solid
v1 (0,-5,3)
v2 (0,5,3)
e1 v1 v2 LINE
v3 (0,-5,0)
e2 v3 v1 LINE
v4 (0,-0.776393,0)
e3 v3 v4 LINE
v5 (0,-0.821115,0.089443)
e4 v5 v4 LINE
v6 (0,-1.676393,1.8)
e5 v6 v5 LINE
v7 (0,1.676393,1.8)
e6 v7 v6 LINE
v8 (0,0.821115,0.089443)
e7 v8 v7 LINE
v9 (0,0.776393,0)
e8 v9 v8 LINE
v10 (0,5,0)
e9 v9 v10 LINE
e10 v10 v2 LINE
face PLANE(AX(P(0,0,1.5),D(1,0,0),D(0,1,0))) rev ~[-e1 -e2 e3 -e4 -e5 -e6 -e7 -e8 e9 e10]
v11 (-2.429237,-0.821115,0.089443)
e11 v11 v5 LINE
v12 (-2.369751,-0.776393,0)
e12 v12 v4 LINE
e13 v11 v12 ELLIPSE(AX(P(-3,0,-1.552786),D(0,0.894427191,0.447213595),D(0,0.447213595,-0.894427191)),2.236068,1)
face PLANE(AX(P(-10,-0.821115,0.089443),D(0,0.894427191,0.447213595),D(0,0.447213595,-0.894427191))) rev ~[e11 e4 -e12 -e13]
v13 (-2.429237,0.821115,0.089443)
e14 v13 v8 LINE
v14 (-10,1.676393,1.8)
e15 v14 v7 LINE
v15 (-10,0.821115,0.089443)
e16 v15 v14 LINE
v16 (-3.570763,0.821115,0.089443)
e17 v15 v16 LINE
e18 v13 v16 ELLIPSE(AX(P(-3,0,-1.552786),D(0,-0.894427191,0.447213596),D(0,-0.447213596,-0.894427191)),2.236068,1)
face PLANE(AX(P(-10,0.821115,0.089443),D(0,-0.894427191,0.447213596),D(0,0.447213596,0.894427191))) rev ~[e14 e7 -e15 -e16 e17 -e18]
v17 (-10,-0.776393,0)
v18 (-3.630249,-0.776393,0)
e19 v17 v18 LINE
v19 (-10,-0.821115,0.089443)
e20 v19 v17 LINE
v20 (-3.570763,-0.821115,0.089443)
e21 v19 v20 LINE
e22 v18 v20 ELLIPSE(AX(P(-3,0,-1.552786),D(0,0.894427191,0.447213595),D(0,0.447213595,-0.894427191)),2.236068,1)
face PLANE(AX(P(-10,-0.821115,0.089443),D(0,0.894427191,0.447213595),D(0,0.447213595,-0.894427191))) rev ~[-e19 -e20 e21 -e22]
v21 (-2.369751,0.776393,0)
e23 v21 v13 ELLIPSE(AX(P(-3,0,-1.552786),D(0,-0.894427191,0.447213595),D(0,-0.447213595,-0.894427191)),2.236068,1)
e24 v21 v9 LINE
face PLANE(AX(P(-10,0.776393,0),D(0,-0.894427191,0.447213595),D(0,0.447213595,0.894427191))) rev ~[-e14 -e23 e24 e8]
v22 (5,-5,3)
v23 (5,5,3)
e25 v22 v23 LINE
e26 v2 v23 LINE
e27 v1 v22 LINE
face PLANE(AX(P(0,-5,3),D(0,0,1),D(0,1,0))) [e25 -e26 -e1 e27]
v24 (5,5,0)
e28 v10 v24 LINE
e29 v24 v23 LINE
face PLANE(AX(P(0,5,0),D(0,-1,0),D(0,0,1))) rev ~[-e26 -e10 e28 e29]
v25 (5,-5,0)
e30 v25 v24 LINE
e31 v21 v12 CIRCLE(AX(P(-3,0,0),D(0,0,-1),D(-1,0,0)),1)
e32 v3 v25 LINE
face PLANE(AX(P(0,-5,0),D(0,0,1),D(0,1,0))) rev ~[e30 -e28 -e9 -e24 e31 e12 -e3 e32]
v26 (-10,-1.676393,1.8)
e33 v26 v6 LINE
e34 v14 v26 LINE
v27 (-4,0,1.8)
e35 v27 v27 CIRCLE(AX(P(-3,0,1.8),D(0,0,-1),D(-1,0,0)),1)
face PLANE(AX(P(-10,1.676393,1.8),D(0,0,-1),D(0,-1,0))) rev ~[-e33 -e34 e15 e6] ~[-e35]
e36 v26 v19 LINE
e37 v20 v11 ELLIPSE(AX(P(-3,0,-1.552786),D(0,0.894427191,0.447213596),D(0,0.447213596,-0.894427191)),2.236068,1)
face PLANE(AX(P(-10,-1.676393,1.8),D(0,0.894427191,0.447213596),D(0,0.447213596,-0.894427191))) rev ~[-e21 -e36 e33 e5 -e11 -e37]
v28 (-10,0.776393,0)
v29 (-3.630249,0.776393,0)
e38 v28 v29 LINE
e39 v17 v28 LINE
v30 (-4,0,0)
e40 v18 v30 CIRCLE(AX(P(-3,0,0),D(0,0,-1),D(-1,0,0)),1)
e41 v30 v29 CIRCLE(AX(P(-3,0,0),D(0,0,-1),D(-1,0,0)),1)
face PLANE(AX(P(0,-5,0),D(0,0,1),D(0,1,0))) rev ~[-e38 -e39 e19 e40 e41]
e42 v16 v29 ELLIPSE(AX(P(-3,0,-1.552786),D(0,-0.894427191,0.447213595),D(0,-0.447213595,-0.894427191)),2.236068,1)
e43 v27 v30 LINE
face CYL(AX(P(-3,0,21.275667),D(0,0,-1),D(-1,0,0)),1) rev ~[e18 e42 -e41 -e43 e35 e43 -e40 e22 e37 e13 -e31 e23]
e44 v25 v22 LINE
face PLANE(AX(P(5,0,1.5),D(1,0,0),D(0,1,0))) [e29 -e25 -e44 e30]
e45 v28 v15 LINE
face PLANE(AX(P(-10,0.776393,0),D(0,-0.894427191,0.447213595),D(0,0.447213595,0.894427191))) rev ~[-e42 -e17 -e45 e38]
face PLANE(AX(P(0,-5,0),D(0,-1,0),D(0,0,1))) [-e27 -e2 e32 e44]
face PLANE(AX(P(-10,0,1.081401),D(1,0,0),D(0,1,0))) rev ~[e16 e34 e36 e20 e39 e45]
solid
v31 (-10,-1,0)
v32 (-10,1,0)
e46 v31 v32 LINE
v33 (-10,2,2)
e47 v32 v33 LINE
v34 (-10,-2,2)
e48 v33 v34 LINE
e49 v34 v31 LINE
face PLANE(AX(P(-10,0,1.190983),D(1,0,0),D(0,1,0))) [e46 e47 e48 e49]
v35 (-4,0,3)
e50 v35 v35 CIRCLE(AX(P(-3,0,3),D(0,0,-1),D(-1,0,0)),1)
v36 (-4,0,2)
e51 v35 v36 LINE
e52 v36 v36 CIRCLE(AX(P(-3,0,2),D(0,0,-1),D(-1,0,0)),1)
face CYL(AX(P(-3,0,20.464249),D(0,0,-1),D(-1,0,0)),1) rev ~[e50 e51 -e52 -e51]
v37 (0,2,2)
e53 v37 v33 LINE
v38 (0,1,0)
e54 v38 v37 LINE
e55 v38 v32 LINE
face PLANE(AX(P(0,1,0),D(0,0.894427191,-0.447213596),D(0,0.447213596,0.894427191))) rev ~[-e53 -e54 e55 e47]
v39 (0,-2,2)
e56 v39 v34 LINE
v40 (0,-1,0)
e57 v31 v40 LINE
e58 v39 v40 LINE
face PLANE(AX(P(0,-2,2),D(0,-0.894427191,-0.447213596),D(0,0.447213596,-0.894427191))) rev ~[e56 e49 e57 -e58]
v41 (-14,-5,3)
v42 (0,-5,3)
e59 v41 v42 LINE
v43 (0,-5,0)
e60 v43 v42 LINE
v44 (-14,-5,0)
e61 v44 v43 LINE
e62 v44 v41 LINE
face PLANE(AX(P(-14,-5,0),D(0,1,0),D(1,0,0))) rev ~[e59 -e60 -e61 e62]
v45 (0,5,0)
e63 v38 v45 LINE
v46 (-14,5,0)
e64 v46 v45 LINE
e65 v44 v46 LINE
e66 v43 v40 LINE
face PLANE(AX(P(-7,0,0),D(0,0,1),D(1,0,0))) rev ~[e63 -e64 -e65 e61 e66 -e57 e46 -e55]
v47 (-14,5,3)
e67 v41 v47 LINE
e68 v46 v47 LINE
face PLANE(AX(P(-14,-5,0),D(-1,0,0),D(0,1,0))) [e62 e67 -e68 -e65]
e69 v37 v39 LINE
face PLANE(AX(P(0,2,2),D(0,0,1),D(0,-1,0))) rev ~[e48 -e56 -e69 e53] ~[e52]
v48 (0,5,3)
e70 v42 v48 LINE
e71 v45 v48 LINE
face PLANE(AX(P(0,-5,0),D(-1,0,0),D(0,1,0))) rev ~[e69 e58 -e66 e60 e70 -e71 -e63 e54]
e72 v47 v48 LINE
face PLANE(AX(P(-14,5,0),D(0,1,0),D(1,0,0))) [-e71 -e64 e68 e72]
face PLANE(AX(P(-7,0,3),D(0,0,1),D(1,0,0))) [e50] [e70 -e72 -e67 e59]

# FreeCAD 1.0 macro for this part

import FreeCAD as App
import Part
import Sketcher
from FreeCAD import Vector


def add_polygon(sketch, points):
    """Adds a closed chain of lines whose ends are joined by coincident constraints."""
    first, n = sketch.GeometryCount, len(points)
    for a, b in zip(points, points[1:] + points[:1]):
        sketch.addGeometry(Part.LineSegment(App.Vector(*a, 0), App.Vector(*b, 0)), False)
    for i in range(n):
        sketch.addConstraint(Sketcher.Constraint("Coincident", first + i, 2, first + (i + 1) % n, 1))

doc = App.newDocument("Part")
body = doc.addObject("PartDesign::Body", "Body")

# Sketch on XY plane
sketch1 = body.newObject("Sketcher::SketchObject", "Sketch")
sketch1.AttachmentSupport = (doc.getObject("XY_Plane"), [""])
sketch1.MapMode = "FlatFace"
add_polygon(sketch1, [(-14, 5), (-14, -5), (0, -5), (0, 5)])  # lines 0-3
sketch1.addConstraint([
    Sketcher.Constraint("Vertical", 0),
    Sketcher.Constraint("Horizontal", 1),
    Sketcher.Constraint("Vertical", 2),
    Sketcher.Constraint("Horizontal", 3),
    Sketcher.Constraint("Symmetric", 1, 2, 2, 2, -1, 1),
    Sketcher.Constraint("DistanceX", 1, 1, 1, 2, 14.0),
    Sketcher.Constraint("DistanceY", 0, 2, 0, 1, 10.0),
])
pad1 = body.newObject("PartDesign::Pad", "Pad")
pad1.Profile = sketch1
pad1.Length = 3

# Sketch on YZ plane
sketch2 = body.newObject("Sketcher::SketchObject", "Sketch001")
sketch2.AttachmentSupport = (doc.getObject("YZ_Plane"), [""])
sketch2.MapMode = "FlatFace"
add_polygon(sketch2, [(-1, 0), (1, 0), (2, 2), (-2, 2)])  # lines 0-3
sketch2.addConstraint([
    Sketcher.Constraint("Horizontal", 0),
    Sketcher.Constraint("Horizontal", 2),
    Sketcher.Constraint("Symmetric", 0, 2, 3, 2, -1, 1),
    Sketcher.Constraint("Equal", 1, 3),
    Sketcher.Constraint("DistanceX", 0, 1, 0, 2, 2.0),
    Sketcher.Constraint("DistanceX", 2, 2, 2, 1, 4.0),
    Sketcher.Constraint("DistanceY", -1, 1, 1, 2, 2.0),
])
pocket1 = body.newObject("PartDesign::Pocket", "Pocket")
pocket1.Profile = sketch2
pocket1.Length = 10

# Sketch on XY plane
sketch3 = body.newObject("Sketcher::SketchObject", "Sketch002")
sketch3.AttachmentSupport = (doc.getObject("XY_Plane"), [""])
sketch3.MapMode = "FlatFace"
sketch3.AttachmentOffset = App.Placement(Vector(0, 0, 3), App.Rotation())
sketch3.addGeometry(Part.Circle(Vector(-3, 0, 0), Vector(0, 0, 1), 1), False)
sketch3.addConstraint([
    Sketcher.Constraint("PointOnObject", 0, 3, -1),
    Sketcher.Constraint("Diameter", 0, 2.0),
    Sketcher.Constraint("DistanceX", 0, 3, -1, 1, 3.0),
])
doc.recompute()
hole = body.newObject("PartDesign::Hole", "Hole")
hole.Profile = sketch3
hole.ThreadType = "None"
hole.Diameter = 2
hole.DepthType = "ThroughAll"
body2 = doc.addObject("PartDesign::Body", "Body001")

# Sketch on YZ plane
sketch4 = body2.newObject("Sketcher::SketchObject", "Sketch003")
sketch4.AttachmentSupport = (doc.getObject("YZ_Plane001"), [""])
sketch4.MapMode = "FlatFace"
sketch4.AttachmentOffset = App.Placement(Vector(0, 0, -10), App.Rotation())
add_polygon(sketch4, [(-1.68, 1.8), (-0.82, 0.09), (-0.78, 0), (0.78, 0), (0.82, 0.09), (1.68, 1.8)])  # lines 0-5
sketch4.addConstraint([
    Sketcher.Constraint("Horizontal", 2),
    Sketcher.Constraint("Horizontal", 5),
    Sketcher.Constraint("Symmetric", 1, 2, 2, 2, -1, 1),
    Sketcher.Constraint("Symmetric", 0, 2, 3, 2, -2),
    Sketcher.Constraint("Parallel", 0, 1),
    Sketcher.Constraint("Parallel", 3, 4),
    Sketcher.Constraint("Distance", 1, 0.1),
    Sketcher.Constraint("DistanceY", -1, 1, 4, 2, 1.8),
    Sketcher.Constraint("DistanceX", 2, 2, 4, 2, 0.9),
    Sketcher.Constraint("DistanceX", 2, 1, 2, 2, 1.552786),
])
pad2 = body2.newObject("PartDesign::Pad", "Pad001")
pad2.Profile = sketch4
pad2.Length = 10

# Sketch on YZ plane
sketch5 = body2.newObject("Sketcher::SketchObject", "Sketch004")
sketch5.AttachmentSupport = (doc.getObject("YZ_Plane001"), [""])
sketch5.MapMode = "FlatFace"
add_polygon(sketch5, [(-5, 3), (-5, 0), (5, 0), (5, 3)])  # lines 0-3
sketch5.addConstraint([
    Sketcher.Constraint("Vertical", 0),
    Sketcher.Constraint("Horizontal", 1),
    Sketcher.Constraint("Vertical", 2),
    Sketcher.Constraint("Horizontal", 3),
    Sketcher.Constraint("Symmetric", 0, 2, 1, 2, -1, 1),
    Sketcher.Constraint("DistanceX", 1, 1, 1, 2, 10.0),
    Sketcher.Constraint("DistanceY", 0, 2, 0, 1, 3.0),
])
pad3 = body2.newObject("PartDesign::Pad", "Pad002")
pad3.Profile = sketch5
pad3.Length = 5

# Sketch on XY plane
sketch6 = body2.newObject("Sketcher::SketchObject", "Sketch005")
sketch6.AttachmentSupport = (doc.getObject("XY_Plane001"), [""])
sketch6.MapMode = "FlatFace"
sketch6.AttachmentOffset = App.Placement(Vector(0, 0, 3), App.Rotation())
sketch6.addGeometry(Part.Circle(Vector(-3, 0, 0), Vector(0, 0, 1), 1), False)
sketch6.addConstraint([
    Sketcher.Constraint("PointOnObject", 0, 3, -1),
    Sketcher.Constraint("Diameter", 0, 2.0),
    Sketcher.Constraint("DistanceX", 0, 3, -1, 1, 3.0),
])
doc.recompute()
hole2 = body2.newObject("PartDesign::Hole", "Hole001")
hole2.Profile = sketch6
hole2.ThreadType = "None"
hole2.Diameter = 2
hole2.DepthType = "ThroughAll"

doc.recompute()
